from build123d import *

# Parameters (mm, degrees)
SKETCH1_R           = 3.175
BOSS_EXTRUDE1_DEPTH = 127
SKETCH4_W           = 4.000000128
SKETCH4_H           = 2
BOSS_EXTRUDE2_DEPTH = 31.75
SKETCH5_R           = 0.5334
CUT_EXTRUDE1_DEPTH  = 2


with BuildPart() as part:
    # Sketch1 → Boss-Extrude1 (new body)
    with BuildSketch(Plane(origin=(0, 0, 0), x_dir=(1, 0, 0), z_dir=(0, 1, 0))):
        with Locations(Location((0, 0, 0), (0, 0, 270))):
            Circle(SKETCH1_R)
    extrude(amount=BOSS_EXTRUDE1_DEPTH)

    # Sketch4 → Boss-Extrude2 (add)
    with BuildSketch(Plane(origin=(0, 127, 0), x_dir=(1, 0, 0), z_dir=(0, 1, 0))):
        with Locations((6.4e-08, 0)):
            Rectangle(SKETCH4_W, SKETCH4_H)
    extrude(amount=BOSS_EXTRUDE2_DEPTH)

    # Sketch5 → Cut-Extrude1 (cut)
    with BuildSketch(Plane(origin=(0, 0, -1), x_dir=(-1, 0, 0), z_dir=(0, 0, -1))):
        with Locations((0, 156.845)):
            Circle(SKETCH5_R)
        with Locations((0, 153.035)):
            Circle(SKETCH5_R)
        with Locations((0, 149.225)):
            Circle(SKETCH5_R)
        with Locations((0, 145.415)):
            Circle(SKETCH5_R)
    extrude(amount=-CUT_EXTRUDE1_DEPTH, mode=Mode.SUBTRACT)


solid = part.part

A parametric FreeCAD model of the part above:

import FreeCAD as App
import Part
import Sketcher
Q = App.Units.Quantity


def add_polygon(sketch, points):
    """Adds a closed chain of lines whose ends are joined by coincident constraints."""
    first, n = sketch.GeometryCount, len(points)
    for a, b in zip(points, points[1:] + points[:1]):
        sketch.addGeometry(Part.LineSegment(App.Vector(*a, 0), App.Vector(*b, 0)), False)
    for i in range(n):
        sketch.addConstraint(Sketcher.Constraint("Coincident", first + i, 2, first + (i + 1) % n, 1))

doc = App.newDocument("Part")
body = doc.addObject("PartDesign::Body", "Body")

# Sketch on XZ plane
sketch1 = body.newObject("Sketcher::SketchObject", "Sketch")
sketch1.AttachmentSupport = (doc.getObject("XZ_Plane"), [""])
sketch1.MapMode = "FlatFace"
sketch1.addGeometry(Part.Circle(App.Vector(0, 0, 0), App.Vector(0, 0, 1), 3.175), False)
sketch1.addConstraint([
    Sketcher.Constraint("Coincident", 0, 3, -1, 1),
    Sketcher.Constraint("Diameter", 0, Q("0.25 in")),
])
pad1 = body.newObject("PartDesign::Pad", "Pad")
pad1.Profile = sketch1
pad1.Length = Q("5 in")
pad1.Reversed = True

# Sketch on XZ plane
sketch2 = body.newObject("Sketcher::SketchObject", "Sketch001")
sketch2.AttachmentSupport = (doc.getObject("XZ_Plane"), [""])
sketch2.MapMode = "FlatFace"
sketch2.AttachmentOffset = App.Placement(App.Vector(0, 0, -5 * 25.4), App.Rotation())
add_polygon(sketch2, [(-2, -1), (-2, 1), (2, 1), (2, -1)])  # lines 0-3
sketch2.addConstraint([
    Sketcher.Constraint("Vertical", 0),
    Sketcher.Constraint("Horizontal", 1),
    Sketcher.Constraint("Vertical", 2),
    Sketcher.Constraint("Horizontal", 3),
    Sketcher.Constraint("Symmetric", 0, 2, 2, 2, -1, 1),
    Sketcher.Constraint("DistanceX", 1, 1, 1, 2, 4.0),
    Sketcher.Constraint("DistanceY", 0, 1, 0, 2, 2.0),
])
pad2 = body.newObject("PartDesign::Pad", "Pad001")
pad2.Profile = sketch2
pad2.Length = Q("1.25 in")
pad2.Reversed = True

# Sketch on XY plane
sketch3 = body.newObject("Sketcher::SketchObject", "Sketch002")
sketch3.AttachmentSupport = (doc.getObject("XY_Plane"), [""])
sketch3.MapMode = "FlatFace"
sketch3.AttachmentOffset = App.Placement(App.Vector(0, 0, -1), App.Rotation())
sketch3.addGeometry([
    Part.Circle(App.Vector(0, 156.845, 0), App.Vector(0, 0, 1), 0.5334),
    Part.Circle(App.Vector(0, 153.035, 0), App.Vector(0, 0, 1), 0.5334),
    Part.Circle(App.Vector(0, 149.225, 0), App.Vector(0, 0, 1), 0.5334),
    Part.Circle(App.Vector(0, 145.415, 0), App.Vector(0, 0, 1), 0.5334),
], False)
sketch3.addConstraint([
    Sketcher.Constraint("Equal", 0, 1),
    Sketcher.Constraint("Equal", 1, 2),
    Sketcher.Constraint("Equal", 2, 3),
    Sketcher.Constraint("PointOnObject", 0, 3, -2),
    Sketcher.Constraint("PointOnObject", 1, 3, -2),
    Sketcher.Constraint("PointOnObject", 2, 3, -2),
    Sketcher.Constraint("PointOnObject", 3, 3, -2),
    Sketcher.Constraint("Diameter", 0, Q("0.042 in")),
    Sketcher.Constraint("DistanceY", 2, 3, 0, 3, Q("0.3 in")),
    Sketcher.Constraint("DistanceY", 3, 3, 1, 3, Q("0.3 in")),
    Sketcher.Constraint("DistanceY", 1, 3, 0, 3, Q("0.15 in")),
    Sketcher.Constraint("DistanceY", -1, 1, 0, 3, Q("6.175 in")),
])
pocket1 = body.newObject("PartDesign::Pocket", "Pocket")
pocket1.Profile = sketch3
pocket1.Length = 2
pocket1.Reversed = True

doc.recompute()
